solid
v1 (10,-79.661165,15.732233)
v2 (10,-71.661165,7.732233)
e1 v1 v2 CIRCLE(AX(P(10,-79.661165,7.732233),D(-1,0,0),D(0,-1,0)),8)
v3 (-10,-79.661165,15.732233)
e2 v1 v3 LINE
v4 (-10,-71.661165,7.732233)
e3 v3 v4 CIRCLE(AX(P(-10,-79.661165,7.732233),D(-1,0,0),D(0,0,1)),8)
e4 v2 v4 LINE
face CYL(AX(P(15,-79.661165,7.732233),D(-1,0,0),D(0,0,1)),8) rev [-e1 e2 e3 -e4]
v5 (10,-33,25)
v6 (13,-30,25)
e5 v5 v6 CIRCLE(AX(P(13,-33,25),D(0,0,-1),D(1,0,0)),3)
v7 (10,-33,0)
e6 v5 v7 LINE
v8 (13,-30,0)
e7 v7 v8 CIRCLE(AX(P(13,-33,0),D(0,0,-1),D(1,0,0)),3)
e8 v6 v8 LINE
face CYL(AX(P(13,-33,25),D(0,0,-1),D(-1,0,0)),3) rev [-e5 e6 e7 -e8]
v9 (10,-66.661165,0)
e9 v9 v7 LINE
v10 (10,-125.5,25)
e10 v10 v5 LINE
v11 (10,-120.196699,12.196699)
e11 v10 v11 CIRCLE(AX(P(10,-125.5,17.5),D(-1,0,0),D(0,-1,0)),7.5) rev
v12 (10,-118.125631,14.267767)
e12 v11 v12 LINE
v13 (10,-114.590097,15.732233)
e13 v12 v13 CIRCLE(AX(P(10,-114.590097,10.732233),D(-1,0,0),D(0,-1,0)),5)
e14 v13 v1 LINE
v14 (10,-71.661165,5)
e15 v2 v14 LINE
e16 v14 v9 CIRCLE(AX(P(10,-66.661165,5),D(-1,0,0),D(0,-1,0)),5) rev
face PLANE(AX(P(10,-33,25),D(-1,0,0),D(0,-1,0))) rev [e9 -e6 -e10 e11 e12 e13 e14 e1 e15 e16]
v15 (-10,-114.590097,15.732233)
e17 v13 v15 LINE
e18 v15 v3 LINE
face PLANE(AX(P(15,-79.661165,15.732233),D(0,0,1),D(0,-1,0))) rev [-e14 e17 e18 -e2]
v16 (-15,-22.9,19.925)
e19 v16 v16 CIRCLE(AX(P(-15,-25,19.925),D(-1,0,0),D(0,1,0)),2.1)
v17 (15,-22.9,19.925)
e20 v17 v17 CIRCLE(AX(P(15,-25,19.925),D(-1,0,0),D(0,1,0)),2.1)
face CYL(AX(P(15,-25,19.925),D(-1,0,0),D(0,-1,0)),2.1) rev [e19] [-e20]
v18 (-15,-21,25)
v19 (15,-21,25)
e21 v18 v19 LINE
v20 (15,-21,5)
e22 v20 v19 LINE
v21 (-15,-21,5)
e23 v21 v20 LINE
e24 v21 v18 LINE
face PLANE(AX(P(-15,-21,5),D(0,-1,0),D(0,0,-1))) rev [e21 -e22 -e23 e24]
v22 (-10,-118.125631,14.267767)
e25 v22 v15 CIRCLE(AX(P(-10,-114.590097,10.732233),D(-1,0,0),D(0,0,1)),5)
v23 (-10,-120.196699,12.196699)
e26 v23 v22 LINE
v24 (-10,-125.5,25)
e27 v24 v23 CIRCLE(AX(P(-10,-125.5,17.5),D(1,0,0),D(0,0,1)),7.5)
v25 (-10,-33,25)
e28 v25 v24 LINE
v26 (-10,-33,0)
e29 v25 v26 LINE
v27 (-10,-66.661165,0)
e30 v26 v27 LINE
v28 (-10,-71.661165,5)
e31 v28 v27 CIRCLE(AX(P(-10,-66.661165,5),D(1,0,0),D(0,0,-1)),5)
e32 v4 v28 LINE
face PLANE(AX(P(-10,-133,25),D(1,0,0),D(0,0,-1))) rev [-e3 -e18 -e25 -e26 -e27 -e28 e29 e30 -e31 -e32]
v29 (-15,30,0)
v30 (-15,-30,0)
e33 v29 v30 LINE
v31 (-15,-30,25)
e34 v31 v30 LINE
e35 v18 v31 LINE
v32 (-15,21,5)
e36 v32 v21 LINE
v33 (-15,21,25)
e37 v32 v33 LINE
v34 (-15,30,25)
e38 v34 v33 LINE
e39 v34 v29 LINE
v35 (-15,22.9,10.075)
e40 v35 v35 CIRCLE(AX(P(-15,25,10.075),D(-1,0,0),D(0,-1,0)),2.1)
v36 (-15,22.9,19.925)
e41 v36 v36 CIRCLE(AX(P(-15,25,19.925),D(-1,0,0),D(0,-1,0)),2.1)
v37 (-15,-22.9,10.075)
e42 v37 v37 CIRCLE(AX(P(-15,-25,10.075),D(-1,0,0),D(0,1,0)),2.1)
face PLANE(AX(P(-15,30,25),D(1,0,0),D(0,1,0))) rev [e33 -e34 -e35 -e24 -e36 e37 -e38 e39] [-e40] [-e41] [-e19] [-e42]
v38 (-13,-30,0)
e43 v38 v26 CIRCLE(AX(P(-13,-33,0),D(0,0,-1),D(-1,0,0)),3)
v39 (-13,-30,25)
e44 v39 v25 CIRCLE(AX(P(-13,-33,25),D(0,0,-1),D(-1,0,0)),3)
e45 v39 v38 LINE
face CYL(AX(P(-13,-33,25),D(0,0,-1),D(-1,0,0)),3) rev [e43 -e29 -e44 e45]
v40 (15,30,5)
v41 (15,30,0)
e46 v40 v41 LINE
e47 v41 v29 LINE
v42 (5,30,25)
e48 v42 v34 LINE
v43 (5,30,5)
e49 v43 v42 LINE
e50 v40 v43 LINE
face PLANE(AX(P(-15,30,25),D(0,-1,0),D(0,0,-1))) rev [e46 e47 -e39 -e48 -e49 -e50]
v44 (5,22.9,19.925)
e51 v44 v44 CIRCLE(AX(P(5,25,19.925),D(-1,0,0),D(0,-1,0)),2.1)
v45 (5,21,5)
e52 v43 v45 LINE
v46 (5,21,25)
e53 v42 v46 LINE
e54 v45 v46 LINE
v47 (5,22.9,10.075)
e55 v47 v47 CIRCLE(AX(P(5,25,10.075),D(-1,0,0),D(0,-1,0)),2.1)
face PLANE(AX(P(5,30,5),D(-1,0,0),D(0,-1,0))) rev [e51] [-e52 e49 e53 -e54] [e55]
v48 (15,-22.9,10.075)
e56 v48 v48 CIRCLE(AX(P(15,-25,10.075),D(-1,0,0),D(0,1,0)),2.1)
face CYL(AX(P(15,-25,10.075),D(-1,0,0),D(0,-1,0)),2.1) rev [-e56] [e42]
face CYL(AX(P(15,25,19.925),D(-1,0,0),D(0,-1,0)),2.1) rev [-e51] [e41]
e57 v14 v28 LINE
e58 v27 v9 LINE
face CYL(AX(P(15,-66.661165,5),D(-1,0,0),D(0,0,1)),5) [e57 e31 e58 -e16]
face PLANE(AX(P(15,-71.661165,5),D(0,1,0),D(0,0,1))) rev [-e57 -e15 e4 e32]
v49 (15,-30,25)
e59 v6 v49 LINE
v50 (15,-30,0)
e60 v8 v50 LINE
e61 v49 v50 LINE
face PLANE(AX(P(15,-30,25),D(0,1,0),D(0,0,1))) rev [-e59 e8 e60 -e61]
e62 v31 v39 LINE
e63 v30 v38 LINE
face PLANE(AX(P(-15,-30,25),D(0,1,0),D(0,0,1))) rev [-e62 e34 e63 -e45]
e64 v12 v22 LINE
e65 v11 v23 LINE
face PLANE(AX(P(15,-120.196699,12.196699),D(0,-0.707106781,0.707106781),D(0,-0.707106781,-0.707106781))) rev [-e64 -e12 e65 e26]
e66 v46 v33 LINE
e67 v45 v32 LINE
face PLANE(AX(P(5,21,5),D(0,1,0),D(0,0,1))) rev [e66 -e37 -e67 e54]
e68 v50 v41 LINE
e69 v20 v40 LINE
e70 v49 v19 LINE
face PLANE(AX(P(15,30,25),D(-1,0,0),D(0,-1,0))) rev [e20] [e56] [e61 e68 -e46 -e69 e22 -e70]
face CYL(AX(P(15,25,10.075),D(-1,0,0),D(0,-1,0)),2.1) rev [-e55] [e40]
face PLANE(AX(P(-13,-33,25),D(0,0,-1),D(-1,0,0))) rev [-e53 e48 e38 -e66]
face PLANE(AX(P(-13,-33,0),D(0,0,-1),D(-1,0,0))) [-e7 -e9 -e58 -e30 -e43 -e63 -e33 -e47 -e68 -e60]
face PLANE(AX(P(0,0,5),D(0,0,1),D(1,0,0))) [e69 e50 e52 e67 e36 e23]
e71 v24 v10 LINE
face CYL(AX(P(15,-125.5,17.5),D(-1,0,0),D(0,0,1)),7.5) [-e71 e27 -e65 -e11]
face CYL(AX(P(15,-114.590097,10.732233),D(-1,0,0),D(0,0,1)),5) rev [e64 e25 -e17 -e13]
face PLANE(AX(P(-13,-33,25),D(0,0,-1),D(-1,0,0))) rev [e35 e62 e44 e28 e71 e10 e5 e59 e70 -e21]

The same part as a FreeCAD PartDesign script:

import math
import FreeCAD as App
import Part
import Sketcher
Q = App.Units.Quantity


def add_polygon(sketch, points):
    """Adds a closed chain of lines whose ends are joined by coincident constraints."""
    first, n = sketch.GeometryCount, len(points)
    for a, b in zip(points, points[1:] + points[:1]):
        sketch.addGeometry(Part.LineSegment(App.Vector(*a, 0), App.Vector(*b, 0)), False)
    for i in range(n):
        sketch.addConstraint(Sketcher.Constraint("Coincident", first + i, 2, first + (i + 1) % n, 1))

doc = App.newDocument("Part")
body = doc.addObject("PartDesign::Body", "Body")

sketch1 = body.newObject("Sketcher::SketchObject", "Sketch")
sketch1.AttachmentSupport = (doc.getObject("XY_Plane"), [""])
sketch1.MapMode = "FlatFace"
sketch1.addGeometry([
    Part.LineSegment(App.Vector(-15, -30, 0), App.Vector(-13, -30, 0)),
    Part.ArcOfCircle(Part.Circle(App.Vector(-13, -33, 0), App.Vector(0, 0, 1), 3), math.radians(0), math.radians(90)),
    Part.LineSegment(App.Vector(-10, -33, 0), App.Vector(-10, -133, 0)),
    Part.LineSegment(App.Vector(-10, -133, 0), App.Vector(10, -133, 0)),
    Part.LineSegment(App.Vector(10, -133, 0), App.Vector(10, -33, 0)),
    Part.ArcOfCircle(Part.Circle(App.Vector(13, -33, 0), App.Vector(0, 0, 1), 3), math.radians(90), math.radians(180)),
    Part.LineSegment(App.Vector(13, -30, 0), App.Vector(15, -30, 0)),
    Part.LineSegment(App.Vector(15, -30, 0), App.Vector(15, 30, 0)),
    Part.LineSegment(App.Vector(15, 30, 0), App.Vector(-15, 30, 0)),
    Part.LineSegment(App.Vector(-15, 30, 0), App.Vector(-15, -30, 0)),
], False)
sketch1.addConstraint([
    Sketcher.Constraint("Tangent", 0, 2, 1, 2),
    Sketcher.Constraint("Tangent", 1, 1, 2, 1),
    Sketcher.Constraint("Coincident", 2, 2, 3, 1),
    Sketcher.Constraint("Coincident", 3, 2, 4, 1),
    Sketcher.Constraint("Tangent", 4, 2, 5, 2),
    Sketcher.Constraint("Tangent", 5, 1, 6, 1),
    Sketcher.Constraint("Coincident", 6, 2, 7, 1),
    Sketcher.Constraint("Coincident", 7, 2, 8, 1),
    Sketcher.Constraint("Coincident", 8, 2, 9, 1),
    Sketcher.Constraint("Coincident", 9, 2, 0, 1),
    Sketcher.Constraint("Horizontal", 0),
    Sketcher.Constraint("Vertical", 2),
    Sketcher.Constraint("Horizontal", 3),
    Sketcher.Constraint("Vertical", 4),
    Sketcher.Constraint("Horizontal", 6),
    Sketcher.Constraint("Vertical", 7),
    Sketcher.Constraint("Horizontal", 8),
    Sketcher.Constraint("Vertical", 9),
    Sketcher.Constraint("Equal", 1, 5),
    Sketcher.Constraint("Symmetric", 6, 2, 8, 2, -1, 1),
    Sketcher.Constraint("Symmetric", 1, 3, 5, 3, -2),
    Sketcher.Constraint("Radius", 1, 3.0),
    Sketcher.Constraint("DistanceX", 0, 1, 0, 2, 2.0),
    Sketcher.Constraint("DistanceX", 3, 1, 3, 2, 20.0),
    Sketcher.Constraint("DistanceY", 2, 2, 2, 1, 100.0),
    Sketcher.Constraint("DistanceY", 7, 1, 7, 2, 60.0),
])
pad1 = body.newObject("PartDesign::Pad", "Pad")
pad1.Profile = sketch1
pad1.Length = 25

sketch2 = body.newObject("Sketcher::SketchObject", "Sketch001")
sketch2.AttachmentSupport = (doc.getObject("XY_Plane"), [""])
sketch2.MapMode = "FlatFace"
sketch2.AttachmentOffset = App.Placement(App.Vector(0, 0, 25), App.Rotation())
add_polygon(sketch2, [(-15, -21), (15, -21), (15, 30), (5, 30), (5, 21), (-15, 21)])
sketch2.addConstraint([
    Sketcher.Constraint("Horizontal", 0),
    Sketcher.Constraint("Vertical", 1),
    Sketcher.Constraint("Horizontal", 2),
    Sketcher.Constraint("Vertical", 3),
    Sketcher.Constraint("Horizontal", 4),
    Sketcher.Constraint("Vertical", 5),
    Sketcher.Constraint("Symmetric", 0, 2, 4, 2, -1, 1),
    Sketcher.Constraint("DistanceX", 0, 1, 0, 2, 30.0),
    Sketcher.Constraint("DistanceX", 2, 2, 2, 1, 10.0),
    Sketcher.Constraint("DistanceY", 1, 1, 1, 2, 51.0),
    Sketcher.Constraint("DistanceY", 3, 2, 3, 1, 9.0),
])
pocket1 = body.newObject("PartDesign::Pocket", "Pocket")
pocket1.Profile = sketch2
pocket1.Length = 20

sketch3 = body.newObject("Sketcher::SketchObject", "Sketch002")
sketch3.AttachmentSupport = (doc.getObject("YZ_Plane"), [""])
sketch3.MapMode = "FlatFace"
sketch3.AttachmentOffset = App.Placement(App.Vector(0, 0, -15), App.Rotation())
sketch3.addGeometry([
    Part.Circle(App.Vector(25, 10.1, 0), App.Vector(0, 0, 1), 2.1),
    Part.Circle(App.Vector(25, 19.9, 0), App.Vector(0, 0, 1), 2.1),
    Part.Circle(App.Vector(-25, 19.9, 0), App.Vector(0, 0, 1), 2.1),
    Part.Circle(App.Vector(-25, 10.1, 0), App.Vector(0, 0, 1), 2.1),
], False)
sketch3.addConstraint([
    Sketcher.Constraint("Equal", 0, 1),
    Sketcher.Constraint("Equal", 1, 2),
    Sketcher.Constraint("Equal", 2, 3),
    Sketcher.Constraint("Symmetric", 1, 3, 2, 3, -2),
    Sketcher.Constraint("Symmetric", 0, 3, 3, 3, -2),
    Sketcher.Constraint("Vertical", 0, 3, 1, 3),
    Sketcher.Constraint("Diameter", 0, 4.2),
    Sketcher.Constraint("DistanceX", -1, 1, 0, 3, 25.0),
    Sketcher.Constraint("DistanceY", 0, 3, 1, 3, 9.85),
    Sketcher.Constraint("DistanceY", -1, 1, 0, 3, 10.075),
])
pocket2 = body.newObject("PartDesign::Pocket", "Pocket001")
pocket2.Profile = sketch3
pocket2.Type = "ThroughAll"
pocket2.Reversed = True

sketch4 = body.newObject("Sketcher::SketchObject", "Sketch003")
sketch4.AttachmentSupport = (doc.getObject("YZ_Plane"), [""])
sketch4.MapMode = "FlatFace"
sketch4.AttachmentOffset = App.Placement(App.Vector(0, 0, -10), App.Rotation())
sketch4.addGeometry([
    Part.LineSegment(App.Vector(-120.2, 12.2, 0), App.Vector(-118.1, 14.3, 0)),
    Part.ArcOfCircle(Part.Circle(App.Vector(-114.6, 10.7, 0), App.Vector(0, 0, 1), 5), math.radians(90), math.radians(135)),
    Part.LineSegment(App.Vector(-114.6, 15.7, 0), App.Vector(-79.7, 15.7, 0)),
    Part.ArcOfCircle(Part.Circle(App.Vector(-79.7, 7.7, 0), App.Vector(0, 0, 1), 8), math.radians(0), math.radians(90)),
    Part.LineSegment(App.Vector(-71.7, 7.7, 0), App.Vector(-71.7, 5, 0)),
    Part.ArcOfCircle(Part.Circle(App.Vector(-66.7, 5, 0), App.Vector(0, 0, 1), 5), math.radians(180), math.radians(270)),
    Part.LineSegment(App.Vector(-66.7, 0, 0), App.Vector(-143.4, 0, 0)),
    Part.LineSegment(App.Vector(-143.4, 0, 0), App.Vector(-142.6, 25, 0)),
    Part.LineSegment(App.Vector(-142.6, 25, 0), App.Vector(-125.5, 25, 0)),
    Part.ArcOfCircle(Part.Circle(App.Vector(-125.5, 17.5, 0), App.Vector(0, 0, 1), 7.5), math.radians(90), math.radians(315)),
], False)
sketch4.addConstraint([
    Sketcher.Constraint("Tangent", 0, 2, 1, 2),
    Sketcher.Constraint("Tangent", 1, 1, 2, 1),
    Sketcher.Constraint("Tangent", 2, 2, 3, 2),
    Sketcher.Constraint("Tangent", 3, 1, 4, 1),
    Sketcher.Constraint("Tangent", 4, 2, 5, 1),
    Sketcher.Constraint("Tangent", 5, 2, 6, 1),
    Sketcher.Constraint("Coincident", 6, 2, 7, 1),
    Sketcher.Constraint("Coincident", 7, 2, 8, 1),
    Sketcher.Constraint("Tangent", 8, 2, 9, 1),
    Sketcher.Constraint("Tangent", 9, 2, 0, 1),
    Sketcher.Constraint("Horizontal", 2),
    Sketcher.Constraint("Vertical", 4),
    Sketcher.Constraint("Horizontal", 6),
    Sketcher.Constraint("Horizontal", 8),
    Sketcher.Constraint("Equal", 1, 5),
    Sketcher.Constraint("PointOnObject", 5, 2, -1),
    Sketcher.Constraint("Radius", 1, 5.0),
    Sketcher.Constraint("Radius", 3, 8.0),
    Sketcher.Constraint("Radius", 9, 7.5),
    Sketcher.Constraint("Angle", 0, Q("45 deg")),
    Sketcher.Constraint("DistanceY", -1, 1, 7, 2, 25.0),
    Sketcher.Constraint("DistanceX", 9, 3, -1, 1, 125.5),
    Sketcher.Constraint("DistanceX", 9, 2, 1, 3, 5.606602),
    Sketcher.Constraint("DistanceX", 2, 1, 2, 2, 34.928932),
    Sketcher.Constraint("DistanceX", 6, 2, 6, 1, 76.762803),
    Sketcher.Constraint("DistanceX", 8, 1, 8, 2, 17.092206),
])
pocket3 = body.newObject("PartDesign::Pocket", "Pocket002")
pocket3.Profile = sketch4
pocket3.Type = "ThroughAll"
pocket3.Reversed = True

doc.recompute()
